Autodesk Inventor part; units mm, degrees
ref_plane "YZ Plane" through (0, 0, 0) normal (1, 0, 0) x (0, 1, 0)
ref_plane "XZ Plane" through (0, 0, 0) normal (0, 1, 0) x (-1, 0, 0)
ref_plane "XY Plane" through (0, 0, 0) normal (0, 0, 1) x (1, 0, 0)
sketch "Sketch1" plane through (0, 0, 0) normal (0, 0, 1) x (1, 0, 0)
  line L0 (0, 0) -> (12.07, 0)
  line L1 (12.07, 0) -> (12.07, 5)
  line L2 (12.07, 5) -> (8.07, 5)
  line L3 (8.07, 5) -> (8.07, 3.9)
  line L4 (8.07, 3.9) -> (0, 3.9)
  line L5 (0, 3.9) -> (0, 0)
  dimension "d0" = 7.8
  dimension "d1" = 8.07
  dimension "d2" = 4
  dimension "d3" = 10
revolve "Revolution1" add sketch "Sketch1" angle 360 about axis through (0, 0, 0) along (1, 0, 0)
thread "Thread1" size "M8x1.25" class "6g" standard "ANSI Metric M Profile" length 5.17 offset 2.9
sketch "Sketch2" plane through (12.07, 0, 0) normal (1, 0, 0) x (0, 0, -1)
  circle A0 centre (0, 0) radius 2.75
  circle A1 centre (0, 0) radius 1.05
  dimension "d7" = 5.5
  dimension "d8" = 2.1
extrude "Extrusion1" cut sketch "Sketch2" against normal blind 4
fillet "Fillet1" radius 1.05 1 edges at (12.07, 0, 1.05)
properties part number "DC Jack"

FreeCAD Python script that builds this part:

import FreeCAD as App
import Part
import Sketcher

V = App.Vector


def edges_at(feature, points):
    """Names of the edges that pass closest to the given points."""
    edges = feature.Shape.Edges
    near = lambda p: min(range(len(edges)), key=lambda i: edges[i].distToShape(Part.Vertex(*p))[0])
    return sorted({f"Edge{near(p) + 1}" for p in points})

doc = App.newDocument("Part")
body = doc.addObject("PartDesign::Body", "Body")

# Sketch on XY plane
sketch1 = doc.addObject("Sketcher::SketchObject", "Sketch")
body.addObject(sketch1)
sketch1.AttachmentSupport = (doc.XY_Plane, [""])
sketch1.MapMode = "FlatFace"
sketch1.addGeometry([
    Part.LineSegment(V(0, 3.9, 0), V(0, 0, 0)),  # 0
    Part.LineSegment(V(0, 0, 0), V(12.07, 0, 0)),  # 1
    Part.LineSegment(V(12.07, 0, 0), V(12.07, 5, 0)),  # 2
    Part.LineSegment(V(12.07, 5, 0), V(8.07, 5, 0)),  # 3
    Part.LineSegment(V(8.07, 5, 0), V(8.07, 3.9, 0)),  # 4
    Part.LineSegment(V(8.07, 3.9, 0), V(0, 3.9, 0)),  # 5
], False)
sketch1.addConstraint([
    Sketcher.Constraint("Coincident", 0, 2, 1, 1),
    Sketcher.Constraint("Coincident", 1, 2, 2, 1),
    Sketcher.Constraint("Coincident", 2, 2, 3, 1),
    Sketcher.Constraint("Coincident", 3, 2, 4, 1),
    Sketcher.Constraint("Coincident", 4, 2, 5, 1),
    Sketcher.Constraint("Coincident", 5, 2, 0, 1),
    Sketcher.Constraint("Vertical", 0),
    Sketcher.Constraint("Horizontal", 1),
    Sketcher.Constraint("Vertical", 2),
    Sketcher.Constraint("Horizontal", 3),
    Sketcher.Constraint("Vertical", 4),
    Sketcher.Constraint("Horizontal", 5),
    Sketcher.Constraint("Coincident", 0, 2, -1, 1),
    Sketcher.Constraint("DistanceX", 3, 2, 3, 1, 4.0),
    Sketcher.Constraint("DistanceX", 5, 2, 5, 1, 8.07),
    Sketcher.Constraint("DistanceY", 2, 1, 2, 2, 5.0),
    Sketcher.Constraint("DistanceY", 0, 2, 0, 1, 3.9),
])
revolution = doc.addObject("PartDesign::Revolution", "Revolution")
body.addObject(revolution)
revolution.Profile = sketch1
revolution.ReferenceAxis = (sketch1, ["H_Axis"])
revolution.Angle = 360

# Sketch on YZ plane
sketch2 = doc.addObject("Sketcher::SketchObject", "Sketch001")
body.addObject(sketch2)
sketch2.AttachmentSupport = (doc.YZ_Plane, [""])
sketch2.MapMode = "FlatFace"
sketch2.AttachmentOffset = App.Placement(V(0, 0, 12.07), App.Rotation())
sketch2.addGeometry([
    Part.Circle(V(0, 0, 0), V(0, 0, 1), 2.75),
    Part.Circle(V(0, 0, 0), V(0, 0, 1), 1.05),
], False)
sketch2.addConstraint([
    Sketcher.Constraint("Coincident", 0, 3, -1, 1),
    Sketcher.Constraint("Coincident", 1, 3, -1, 1),
    Sketcher.Constraint("Diameter", 0, 5.5),
    Sketcher.Constraint("Diameter", 1, 2.1),
])
pocket1 = doc.addObject("PartDesign::Pocket", "Pocket")
body.addObject(pocket1)
pocket1.Profile = sketch2
pocket1.Length = 4
doc.recompute()

fillet = doc.addObject("PartDesign::Fillet", "Fillet")
body.addObject(fillet)
fillet.Base = (pocket1, edges_at(pocket1, [(12.07, 0, 1.05)]))
fillet.Radius = 1.05

doc.recompute()
